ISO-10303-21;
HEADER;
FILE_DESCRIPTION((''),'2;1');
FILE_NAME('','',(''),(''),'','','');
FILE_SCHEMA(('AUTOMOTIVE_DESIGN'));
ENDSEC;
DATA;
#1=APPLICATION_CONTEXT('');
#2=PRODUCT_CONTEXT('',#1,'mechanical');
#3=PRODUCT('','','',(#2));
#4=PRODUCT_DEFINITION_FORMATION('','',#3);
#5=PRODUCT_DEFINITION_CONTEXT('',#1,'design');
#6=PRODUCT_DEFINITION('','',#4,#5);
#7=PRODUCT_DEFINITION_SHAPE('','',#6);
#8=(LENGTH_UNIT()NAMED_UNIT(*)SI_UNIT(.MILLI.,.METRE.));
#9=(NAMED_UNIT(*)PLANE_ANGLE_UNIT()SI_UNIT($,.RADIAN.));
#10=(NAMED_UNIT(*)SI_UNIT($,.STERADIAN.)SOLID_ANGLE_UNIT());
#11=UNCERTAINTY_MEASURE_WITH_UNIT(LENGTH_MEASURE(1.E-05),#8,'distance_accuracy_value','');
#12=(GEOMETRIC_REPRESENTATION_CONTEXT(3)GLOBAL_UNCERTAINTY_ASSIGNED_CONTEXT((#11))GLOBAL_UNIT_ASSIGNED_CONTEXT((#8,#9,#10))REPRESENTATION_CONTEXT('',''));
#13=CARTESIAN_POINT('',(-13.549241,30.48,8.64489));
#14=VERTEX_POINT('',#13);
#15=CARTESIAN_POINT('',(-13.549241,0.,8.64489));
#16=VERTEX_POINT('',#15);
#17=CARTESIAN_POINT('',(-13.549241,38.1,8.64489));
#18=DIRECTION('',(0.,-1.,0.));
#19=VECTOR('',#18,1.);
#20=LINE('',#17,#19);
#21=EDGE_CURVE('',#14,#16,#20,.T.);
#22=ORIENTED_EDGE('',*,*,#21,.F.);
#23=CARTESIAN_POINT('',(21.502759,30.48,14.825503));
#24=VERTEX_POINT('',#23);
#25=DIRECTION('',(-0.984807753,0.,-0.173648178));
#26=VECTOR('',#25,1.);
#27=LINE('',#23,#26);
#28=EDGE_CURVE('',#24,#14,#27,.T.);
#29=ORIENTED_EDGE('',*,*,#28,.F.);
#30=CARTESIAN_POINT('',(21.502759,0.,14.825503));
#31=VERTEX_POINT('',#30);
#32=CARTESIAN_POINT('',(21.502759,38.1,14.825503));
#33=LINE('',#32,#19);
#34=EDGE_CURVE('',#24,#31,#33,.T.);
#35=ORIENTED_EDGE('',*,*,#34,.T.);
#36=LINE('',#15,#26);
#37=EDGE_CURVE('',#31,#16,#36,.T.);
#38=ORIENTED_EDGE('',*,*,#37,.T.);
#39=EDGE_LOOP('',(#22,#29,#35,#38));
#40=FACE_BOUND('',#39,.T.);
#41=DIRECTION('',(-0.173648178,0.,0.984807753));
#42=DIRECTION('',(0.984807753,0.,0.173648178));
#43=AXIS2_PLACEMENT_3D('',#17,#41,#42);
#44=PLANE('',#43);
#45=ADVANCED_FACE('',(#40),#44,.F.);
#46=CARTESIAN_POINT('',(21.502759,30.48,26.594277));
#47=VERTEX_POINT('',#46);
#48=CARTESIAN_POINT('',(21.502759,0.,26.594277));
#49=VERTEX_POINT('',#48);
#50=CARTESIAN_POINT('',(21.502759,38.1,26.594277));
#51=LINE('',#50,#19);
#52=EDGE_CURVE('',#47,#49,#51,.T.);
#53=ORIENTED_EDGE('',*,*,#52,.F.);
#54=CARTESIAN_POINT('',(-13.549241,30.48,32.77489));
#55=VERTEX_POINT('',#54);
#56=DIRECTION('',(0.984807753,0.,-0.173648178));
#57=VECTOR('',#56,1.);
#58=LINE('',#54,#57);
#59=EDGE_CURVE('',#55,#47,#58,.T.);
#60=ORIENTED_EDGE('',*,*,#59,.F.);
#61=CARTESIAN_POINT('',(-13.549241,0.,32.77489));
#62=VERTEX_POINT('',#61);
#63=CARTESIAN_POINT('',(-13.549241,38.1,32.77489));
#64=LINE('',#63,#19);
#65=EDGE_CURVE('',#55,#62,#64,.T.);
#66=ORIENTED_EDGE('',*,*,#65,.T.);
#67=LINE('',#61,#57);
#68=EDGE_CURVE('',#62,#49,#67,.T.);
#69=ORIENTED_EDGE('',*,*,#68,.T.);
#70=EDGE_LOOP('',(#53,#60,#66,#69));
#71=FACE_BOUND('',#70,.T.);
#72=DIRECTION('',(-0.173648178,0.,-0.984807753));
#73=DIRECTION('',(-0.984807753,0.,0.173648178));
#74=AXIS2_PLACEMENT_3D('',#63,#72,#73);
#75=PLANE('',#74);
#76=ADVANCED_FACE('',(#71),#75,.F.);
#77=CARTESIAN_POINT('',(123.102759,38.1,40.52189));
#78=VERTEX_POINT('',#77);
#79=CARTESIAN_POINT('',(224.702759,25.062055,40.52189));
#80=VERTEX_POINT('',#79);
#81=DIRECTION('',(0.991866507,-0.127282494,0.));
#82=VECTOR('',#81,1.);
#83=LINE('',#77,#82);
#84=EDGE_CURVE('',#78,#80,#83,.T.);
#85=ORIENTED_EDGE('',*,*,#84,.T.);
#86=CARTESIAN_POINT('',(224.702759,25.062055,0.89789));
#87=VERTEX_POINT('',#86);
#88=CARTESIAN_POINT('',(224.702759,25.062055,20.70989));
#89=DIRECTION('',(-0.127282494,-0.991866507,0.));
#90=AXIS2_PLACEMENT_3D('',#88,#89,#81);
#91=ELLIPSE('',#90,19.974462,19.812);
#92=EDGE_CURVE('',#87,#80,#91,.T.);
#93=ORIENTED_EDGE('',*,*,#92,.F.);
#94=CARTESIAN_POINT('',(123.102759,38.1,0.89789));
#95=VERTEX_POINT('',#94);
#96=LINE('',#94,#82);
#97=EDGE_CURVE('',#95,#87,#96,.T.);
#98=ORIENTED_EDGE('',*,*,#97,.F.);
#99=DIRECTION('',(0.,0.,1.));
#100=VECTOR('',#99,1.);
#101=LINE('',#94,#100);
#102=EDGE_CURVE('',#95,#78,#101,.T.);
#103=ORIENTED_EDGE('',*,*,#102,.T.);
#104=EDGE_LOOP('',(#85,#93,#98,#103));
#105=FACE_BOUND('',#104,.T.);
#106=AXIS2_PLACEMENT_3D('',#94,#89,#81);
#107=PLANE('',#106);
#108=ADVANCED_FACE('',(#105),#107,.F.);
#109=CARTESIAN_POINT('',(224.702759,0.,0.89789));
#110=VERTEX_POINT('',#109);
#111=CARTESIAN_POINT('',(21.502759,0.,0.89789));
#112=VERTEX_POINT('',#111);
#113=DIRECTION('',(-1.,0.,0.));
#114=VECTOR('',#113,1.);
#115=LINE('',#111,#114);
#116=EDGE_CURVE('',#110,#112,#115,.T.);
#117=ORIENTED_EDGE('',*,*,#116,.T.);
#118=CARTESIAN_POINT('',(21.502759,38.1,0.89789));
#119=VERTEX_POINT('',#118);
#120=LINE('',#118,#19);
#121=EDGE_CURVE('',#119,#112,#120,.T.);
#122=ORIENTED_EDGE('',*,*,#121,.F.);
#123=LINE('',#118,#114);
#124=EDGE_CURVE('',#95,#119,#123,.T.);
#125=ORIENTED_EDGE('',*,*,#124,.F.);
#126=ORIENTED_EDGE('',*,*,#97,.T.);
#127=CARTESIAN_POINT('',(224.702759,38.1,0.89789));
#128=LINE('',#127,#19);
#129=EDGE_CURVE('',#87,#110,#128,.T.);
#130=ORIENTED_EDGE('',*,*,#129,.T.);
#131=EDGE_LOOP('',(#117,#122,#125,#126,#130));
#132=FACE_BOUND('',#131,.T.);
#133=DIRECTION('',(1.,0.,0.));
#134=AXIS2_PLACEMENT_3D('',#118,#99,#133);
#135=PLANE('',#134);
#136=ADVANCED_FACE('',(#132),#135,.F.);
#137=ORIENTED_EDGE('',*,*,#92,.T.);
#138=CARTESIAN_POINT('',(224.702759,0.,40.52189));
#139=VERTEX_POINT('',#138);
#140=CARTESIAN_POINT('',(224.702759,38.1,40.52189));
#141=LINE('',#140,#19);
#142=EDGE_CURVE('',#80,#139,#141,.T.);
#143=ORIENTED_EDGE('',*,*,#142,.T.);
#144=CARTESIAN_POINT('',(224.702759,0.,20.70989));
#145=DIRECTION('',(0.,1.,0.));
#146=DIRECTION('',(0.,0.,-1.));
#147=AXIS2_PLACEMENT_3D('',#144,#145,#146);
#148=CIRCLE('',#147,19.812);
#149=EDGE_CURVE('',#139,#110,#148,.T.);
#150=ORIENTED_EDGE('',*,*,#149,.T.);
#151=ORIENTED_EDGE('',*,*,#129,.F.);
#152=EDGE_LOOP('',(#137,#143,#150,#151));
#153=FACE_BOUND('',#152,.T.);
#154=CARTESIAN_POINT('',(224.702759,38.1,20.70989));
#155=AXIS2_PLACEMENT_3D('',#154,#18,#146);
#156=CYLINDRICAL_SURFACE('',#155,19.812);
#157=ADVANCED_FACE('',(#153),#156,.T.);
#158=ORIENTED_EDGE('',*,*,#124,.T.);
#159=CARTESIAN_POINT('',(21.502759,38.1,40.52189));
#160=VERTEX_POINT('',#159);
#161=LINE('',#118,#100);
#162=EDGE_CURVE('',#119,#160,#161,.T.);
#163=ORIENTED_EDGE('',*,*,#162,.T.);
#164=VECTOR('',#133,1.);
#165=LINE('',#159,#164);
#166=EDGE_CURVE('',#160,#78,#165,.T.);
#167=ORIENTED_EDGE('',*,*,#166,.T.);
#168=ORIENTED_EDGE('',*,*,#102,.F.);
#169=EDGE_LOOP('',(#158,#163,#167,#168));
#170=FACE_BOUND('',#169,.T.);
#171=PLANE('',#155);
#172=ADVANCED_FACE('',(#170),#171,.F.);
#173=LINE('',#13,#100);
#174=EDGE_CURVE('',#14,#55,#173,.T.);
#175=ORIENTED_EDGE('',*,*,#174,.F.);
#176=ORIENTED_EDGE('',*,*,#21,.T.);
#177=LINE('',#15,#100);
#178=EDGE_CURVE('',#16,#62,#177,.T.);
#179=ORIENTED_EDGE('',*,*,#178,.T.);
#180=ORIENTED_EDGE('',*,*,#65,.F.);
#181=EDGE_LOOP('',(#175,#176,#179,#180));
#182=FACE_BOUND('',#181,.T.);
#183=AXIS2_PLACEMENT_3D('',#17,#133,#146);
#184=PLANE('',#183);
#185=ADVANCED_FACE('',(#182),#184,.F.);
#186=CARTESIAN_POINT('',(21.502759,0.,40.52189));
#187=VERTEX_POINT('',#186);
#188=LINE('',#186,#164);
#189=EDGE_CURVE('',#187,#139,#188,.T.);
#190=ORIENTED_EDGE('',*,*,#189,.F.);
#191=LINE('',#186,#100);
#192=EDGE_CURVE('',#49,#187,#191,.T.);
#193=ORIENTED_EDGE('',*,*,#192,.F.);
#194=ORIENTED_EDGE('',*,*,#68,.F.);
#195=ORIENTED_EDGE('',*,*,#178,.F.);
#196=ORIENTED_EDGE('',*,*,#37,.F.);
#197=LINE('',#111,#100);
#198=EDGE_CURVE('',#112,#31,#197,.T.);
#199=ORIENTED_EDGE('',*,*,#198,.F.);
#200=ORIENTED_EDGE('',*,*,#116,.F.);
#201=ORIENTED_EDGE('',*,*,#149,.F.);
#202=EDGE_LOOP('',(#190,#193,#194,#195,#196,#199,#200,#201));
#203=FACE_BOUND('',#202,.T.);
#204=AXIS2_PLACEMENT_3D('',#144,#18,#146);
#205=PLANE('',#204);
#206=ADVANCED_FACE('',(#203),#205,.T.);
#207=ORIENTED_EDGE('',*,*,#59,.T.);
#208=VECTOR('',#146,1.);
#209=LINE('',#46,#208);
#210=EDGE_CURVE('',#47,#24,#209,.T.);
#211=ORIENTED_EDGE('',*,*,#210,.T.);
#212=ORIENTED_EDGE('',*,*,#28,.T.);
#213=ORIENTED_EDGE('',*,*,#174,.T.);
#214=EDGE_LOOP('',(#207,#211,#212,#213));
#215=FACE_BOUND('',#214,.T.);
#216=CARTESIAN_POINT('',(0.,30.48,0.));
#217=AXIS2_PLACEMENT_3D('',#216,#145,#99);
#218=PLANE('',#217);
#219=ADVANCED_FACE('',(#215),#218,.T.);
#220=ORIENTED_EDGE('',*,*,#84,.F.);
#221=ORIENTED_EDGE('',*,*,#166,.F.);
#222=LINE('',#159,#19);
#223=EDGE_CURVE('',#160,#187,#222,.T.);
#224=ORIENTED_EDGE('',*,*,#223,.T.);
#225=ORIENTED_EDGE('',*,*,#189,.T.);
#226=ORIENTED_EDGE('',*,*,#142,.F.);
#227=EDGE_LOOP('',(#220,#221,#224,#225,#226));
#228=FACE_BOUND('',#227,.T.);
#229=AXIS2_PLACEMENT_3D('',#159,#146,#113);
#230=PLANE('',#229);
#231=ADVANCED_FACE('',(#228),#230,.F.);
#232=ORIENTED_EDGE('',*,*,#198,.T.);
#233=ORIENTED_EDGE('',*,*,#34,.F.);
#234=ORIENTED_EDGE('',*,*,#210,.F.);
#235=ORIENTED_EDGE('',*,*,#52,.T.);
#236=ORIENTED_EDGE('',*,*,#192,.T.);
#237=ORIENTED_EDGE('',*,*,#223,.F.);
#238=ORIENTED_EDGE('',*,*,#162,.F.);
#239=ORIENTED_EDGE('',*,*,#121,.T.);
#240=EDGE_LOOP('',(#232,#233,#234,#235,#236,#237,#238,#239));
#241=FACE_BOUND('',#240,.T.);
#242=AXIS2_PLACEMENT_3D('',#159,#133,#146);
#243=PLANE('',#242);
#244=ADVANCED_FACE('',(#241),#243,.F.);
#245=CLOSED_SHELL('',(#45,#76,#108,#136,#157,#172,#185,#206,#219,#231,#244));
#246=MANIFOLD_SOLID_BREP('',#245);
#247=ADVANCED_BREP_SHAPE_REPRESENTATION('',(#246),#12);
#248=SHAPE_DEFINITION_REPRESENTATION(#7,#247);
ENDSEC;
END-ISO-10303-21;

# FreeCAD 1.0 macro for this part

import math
import FreeCAD as App
import Part
import Sketcher
from FreeCAD import Vector
Q = App.Units.Quantity


def add_polygon(sketch, points):
    """Adds a closed chain of lines whose ends are joined by coincident constraints."""
    first, n = sketch.GeometryCount, len(points)
    for a, b in zip(points, points[1:] + points[:1]):
        sketch.addGeometry(Part.LineSegment(App.Vector(*a, 0), App.Vector(*b, 0)), False)
    for i in range(n):
        sketch.addConstraint(Sketcher.Constraint("Coincident", first + i, 2, first + (i + 1) % n, 1))

doc = App.newDocument("Part")
body = doc.addObject("PartDesign::Body", "Body")

sketch1 = doc.addObject("Sketcher::SketchObject", "Sketch")
body.addObject(sketch1)
sketch1.AttachmentSupport = (doc.XZ_Plane, [""])
sketch1.MapMode = "FlatFace"
sketch1.addGeometry([
    Part.LineSegment(Vector(-14, 9, 0), Vector(-14, 33, 0)),
    Part.LineSegment(Vector(-14, 33, 0), Vector(22, 27, 0)),
    Part.LineSegment(Vector(22, 27, 0), Vector(22, 41, 0)),
    Part.LineSegment(Vector(22, 41, 0), Vector(225, 41, 0)),
    Part.ArcOfCircle(Part.Circle(Vector(225, 21, 0), Vector(0, 0, 1), 20), math.radians(-90), math.radians(90)),
    Part.LineSegment(Vector(225, 1, 0), Vector(22, 1, 0)),
    Part.LineSegment(Vector(22, 1, 0), Vector(22, 15, 0)),
    Part.LineSegment(Vector(22, 15, 0), Vector(-14, 9, 0)),
], False)
sketch1.addConstraint([
    Sketcher.Constraint("Coincident", 0, 2, 1, 1),
    Sketcher.Constraint("Coincident", 1, 2, 2, 1),
    Sketcher.Constraint("Coincident", 2, 2, 3, 1),
    Sketcher.Constraint("Tangent", 3, 2, 4, 2),
    Sketcher.Constraint("Tangent", 4, 1, 5, 1),
    Sketcher.Constraint("Coincident", 5, 2, 6, 1),
    Sketcher.Constraint("Coincident", 6, 2, 7, 1),
    Sketcher.Constraint("Coincident", 7, 2, 0, 1),
    Sketcher.Constraint("Vertical", 0),
    Sketcher.Constraint("Vertical", 2),
    Sketcher.Constraint("Horizontal", 3),
    Sketcher.Constraint("Horizontal", 5),
    Sketcher.Constraint("Vertical", 6),
    Sketcher.Constraint("Vertical", 2, 2, 5, 2),
    Sketcher.Constraint("Equal", 2, 6),
    Sketcher.Constraint("Equal", 1, 7),
    Sketcher.Constraint("DistanceX", 3, 1, 3, 2, Q("8 in")),
    Sketcher.Constraint("Radius", 4, Q("0.78 in")),
    Sketcher.Constraint("Angle", 1, Q("-10 deg")),
    Sketcher.Constraint("DistanceY", 0, 1, 0, 2, Q("0.95 in")),
    Sketcher.Constraint("DistanceX", 0, 2, 4, 3, Q("9.38 in")),
    Sketcher.Constraint("DistanceX", -1, 1, 4, 3, 224.702759),
    Sketcher.Constraint("DistanceY", -1, 1, 4, 3, 20.70989),
])
pad1 = doc.addObject("PartDesign::Pad", "Pad")
body.addObject(pad1)
pad1.Profile = sketch1
pad1.Length = Q("1.5 in")
pad1.Reversed = True

sketch2 = doc.addObject("Sketcher::SketchObject", "Sketch001")
body.addObject(sketch2)
sketch2.AttachmentSupport = (doc.XZ_Plane, [""])
sketch2.MapMode = "FlatFace"
sketch2.AttachmentOffset = App.Placement(Vector(0, 0, -1.5 * 25.4), App.Rotation())
add_polygon(sketch2, [(-14, 9), (-14, 33), (22, 27), (22, 15)])
sketch2.addConstraint([
    Sketcher.Constraint("Vertical", 0),
    Sketcher.Constraint("Vertical", 2),
    Sketcher.Constraint("Equal", 1, 3),
    Sketcher.Constraint("Angle", 1, Q("-10 deg")),
    Sketcher.Constraint("DistanceY", 0, 1, 0, 2, Q("0.95 in")),
    Sketcher.Constraint("DistanceX", 0, 2, 1, 2, Q("1.38 in")),
    Sketcher.Constraint("DistanceX", 0, 2, -1, 1, 13.549241),
    Sketcher.Constraint("DistanceY", -1, 1, 0, 2, 32.77489),
])
pocket1 = doc.addObject("PartDesign::Pocket", "Pocket")
body.addObject(pocket1)
pocket1.Profile = sketch2
pocket1.Length = Q("0.3 in")
pocket1.Reversed = True

sketch3 = doc.addObject("Sketcher::SketchObject", "Sketch002")
body.addObject(sketch3)
sketch3.AttachmentSupport = (doc.XY_Plane, [""])
sketch3.MapMode = "FlatFace"
sketch3.AttachmentOffset = App.Placement(Vector(0, 0, 40.52189), App.Rotation())
add_polygon(sketch3, [(123, 38), (245, 23), (245, 38)])
sketch3.addConstraint([
    Sketcher.Constraint("Vertical", 1),
    Sketcher.Constraint("Horizontal", 2),
    Sketcher.Constraint("DistanceX", 2, 2, 2, 1, Q("4.78 in")),
    Sketcher.Constraint("DistanceY", -1, 1, 1, 2, Q("1.5 in")),
    Sketcher.Constraint("Distance", 0, 122.407601),
    Sketcher.Constraint("DistanceX", -1, 1, 0, 2, 244.514759),
])
pocket2 = doc.addObject("PartDesign::Pocket", "Pocket001")
body.addObject(pocket2)
pocket2.Profile = sketch3
pocket2.Length = Q("1.56 in")

doc.recompute()
